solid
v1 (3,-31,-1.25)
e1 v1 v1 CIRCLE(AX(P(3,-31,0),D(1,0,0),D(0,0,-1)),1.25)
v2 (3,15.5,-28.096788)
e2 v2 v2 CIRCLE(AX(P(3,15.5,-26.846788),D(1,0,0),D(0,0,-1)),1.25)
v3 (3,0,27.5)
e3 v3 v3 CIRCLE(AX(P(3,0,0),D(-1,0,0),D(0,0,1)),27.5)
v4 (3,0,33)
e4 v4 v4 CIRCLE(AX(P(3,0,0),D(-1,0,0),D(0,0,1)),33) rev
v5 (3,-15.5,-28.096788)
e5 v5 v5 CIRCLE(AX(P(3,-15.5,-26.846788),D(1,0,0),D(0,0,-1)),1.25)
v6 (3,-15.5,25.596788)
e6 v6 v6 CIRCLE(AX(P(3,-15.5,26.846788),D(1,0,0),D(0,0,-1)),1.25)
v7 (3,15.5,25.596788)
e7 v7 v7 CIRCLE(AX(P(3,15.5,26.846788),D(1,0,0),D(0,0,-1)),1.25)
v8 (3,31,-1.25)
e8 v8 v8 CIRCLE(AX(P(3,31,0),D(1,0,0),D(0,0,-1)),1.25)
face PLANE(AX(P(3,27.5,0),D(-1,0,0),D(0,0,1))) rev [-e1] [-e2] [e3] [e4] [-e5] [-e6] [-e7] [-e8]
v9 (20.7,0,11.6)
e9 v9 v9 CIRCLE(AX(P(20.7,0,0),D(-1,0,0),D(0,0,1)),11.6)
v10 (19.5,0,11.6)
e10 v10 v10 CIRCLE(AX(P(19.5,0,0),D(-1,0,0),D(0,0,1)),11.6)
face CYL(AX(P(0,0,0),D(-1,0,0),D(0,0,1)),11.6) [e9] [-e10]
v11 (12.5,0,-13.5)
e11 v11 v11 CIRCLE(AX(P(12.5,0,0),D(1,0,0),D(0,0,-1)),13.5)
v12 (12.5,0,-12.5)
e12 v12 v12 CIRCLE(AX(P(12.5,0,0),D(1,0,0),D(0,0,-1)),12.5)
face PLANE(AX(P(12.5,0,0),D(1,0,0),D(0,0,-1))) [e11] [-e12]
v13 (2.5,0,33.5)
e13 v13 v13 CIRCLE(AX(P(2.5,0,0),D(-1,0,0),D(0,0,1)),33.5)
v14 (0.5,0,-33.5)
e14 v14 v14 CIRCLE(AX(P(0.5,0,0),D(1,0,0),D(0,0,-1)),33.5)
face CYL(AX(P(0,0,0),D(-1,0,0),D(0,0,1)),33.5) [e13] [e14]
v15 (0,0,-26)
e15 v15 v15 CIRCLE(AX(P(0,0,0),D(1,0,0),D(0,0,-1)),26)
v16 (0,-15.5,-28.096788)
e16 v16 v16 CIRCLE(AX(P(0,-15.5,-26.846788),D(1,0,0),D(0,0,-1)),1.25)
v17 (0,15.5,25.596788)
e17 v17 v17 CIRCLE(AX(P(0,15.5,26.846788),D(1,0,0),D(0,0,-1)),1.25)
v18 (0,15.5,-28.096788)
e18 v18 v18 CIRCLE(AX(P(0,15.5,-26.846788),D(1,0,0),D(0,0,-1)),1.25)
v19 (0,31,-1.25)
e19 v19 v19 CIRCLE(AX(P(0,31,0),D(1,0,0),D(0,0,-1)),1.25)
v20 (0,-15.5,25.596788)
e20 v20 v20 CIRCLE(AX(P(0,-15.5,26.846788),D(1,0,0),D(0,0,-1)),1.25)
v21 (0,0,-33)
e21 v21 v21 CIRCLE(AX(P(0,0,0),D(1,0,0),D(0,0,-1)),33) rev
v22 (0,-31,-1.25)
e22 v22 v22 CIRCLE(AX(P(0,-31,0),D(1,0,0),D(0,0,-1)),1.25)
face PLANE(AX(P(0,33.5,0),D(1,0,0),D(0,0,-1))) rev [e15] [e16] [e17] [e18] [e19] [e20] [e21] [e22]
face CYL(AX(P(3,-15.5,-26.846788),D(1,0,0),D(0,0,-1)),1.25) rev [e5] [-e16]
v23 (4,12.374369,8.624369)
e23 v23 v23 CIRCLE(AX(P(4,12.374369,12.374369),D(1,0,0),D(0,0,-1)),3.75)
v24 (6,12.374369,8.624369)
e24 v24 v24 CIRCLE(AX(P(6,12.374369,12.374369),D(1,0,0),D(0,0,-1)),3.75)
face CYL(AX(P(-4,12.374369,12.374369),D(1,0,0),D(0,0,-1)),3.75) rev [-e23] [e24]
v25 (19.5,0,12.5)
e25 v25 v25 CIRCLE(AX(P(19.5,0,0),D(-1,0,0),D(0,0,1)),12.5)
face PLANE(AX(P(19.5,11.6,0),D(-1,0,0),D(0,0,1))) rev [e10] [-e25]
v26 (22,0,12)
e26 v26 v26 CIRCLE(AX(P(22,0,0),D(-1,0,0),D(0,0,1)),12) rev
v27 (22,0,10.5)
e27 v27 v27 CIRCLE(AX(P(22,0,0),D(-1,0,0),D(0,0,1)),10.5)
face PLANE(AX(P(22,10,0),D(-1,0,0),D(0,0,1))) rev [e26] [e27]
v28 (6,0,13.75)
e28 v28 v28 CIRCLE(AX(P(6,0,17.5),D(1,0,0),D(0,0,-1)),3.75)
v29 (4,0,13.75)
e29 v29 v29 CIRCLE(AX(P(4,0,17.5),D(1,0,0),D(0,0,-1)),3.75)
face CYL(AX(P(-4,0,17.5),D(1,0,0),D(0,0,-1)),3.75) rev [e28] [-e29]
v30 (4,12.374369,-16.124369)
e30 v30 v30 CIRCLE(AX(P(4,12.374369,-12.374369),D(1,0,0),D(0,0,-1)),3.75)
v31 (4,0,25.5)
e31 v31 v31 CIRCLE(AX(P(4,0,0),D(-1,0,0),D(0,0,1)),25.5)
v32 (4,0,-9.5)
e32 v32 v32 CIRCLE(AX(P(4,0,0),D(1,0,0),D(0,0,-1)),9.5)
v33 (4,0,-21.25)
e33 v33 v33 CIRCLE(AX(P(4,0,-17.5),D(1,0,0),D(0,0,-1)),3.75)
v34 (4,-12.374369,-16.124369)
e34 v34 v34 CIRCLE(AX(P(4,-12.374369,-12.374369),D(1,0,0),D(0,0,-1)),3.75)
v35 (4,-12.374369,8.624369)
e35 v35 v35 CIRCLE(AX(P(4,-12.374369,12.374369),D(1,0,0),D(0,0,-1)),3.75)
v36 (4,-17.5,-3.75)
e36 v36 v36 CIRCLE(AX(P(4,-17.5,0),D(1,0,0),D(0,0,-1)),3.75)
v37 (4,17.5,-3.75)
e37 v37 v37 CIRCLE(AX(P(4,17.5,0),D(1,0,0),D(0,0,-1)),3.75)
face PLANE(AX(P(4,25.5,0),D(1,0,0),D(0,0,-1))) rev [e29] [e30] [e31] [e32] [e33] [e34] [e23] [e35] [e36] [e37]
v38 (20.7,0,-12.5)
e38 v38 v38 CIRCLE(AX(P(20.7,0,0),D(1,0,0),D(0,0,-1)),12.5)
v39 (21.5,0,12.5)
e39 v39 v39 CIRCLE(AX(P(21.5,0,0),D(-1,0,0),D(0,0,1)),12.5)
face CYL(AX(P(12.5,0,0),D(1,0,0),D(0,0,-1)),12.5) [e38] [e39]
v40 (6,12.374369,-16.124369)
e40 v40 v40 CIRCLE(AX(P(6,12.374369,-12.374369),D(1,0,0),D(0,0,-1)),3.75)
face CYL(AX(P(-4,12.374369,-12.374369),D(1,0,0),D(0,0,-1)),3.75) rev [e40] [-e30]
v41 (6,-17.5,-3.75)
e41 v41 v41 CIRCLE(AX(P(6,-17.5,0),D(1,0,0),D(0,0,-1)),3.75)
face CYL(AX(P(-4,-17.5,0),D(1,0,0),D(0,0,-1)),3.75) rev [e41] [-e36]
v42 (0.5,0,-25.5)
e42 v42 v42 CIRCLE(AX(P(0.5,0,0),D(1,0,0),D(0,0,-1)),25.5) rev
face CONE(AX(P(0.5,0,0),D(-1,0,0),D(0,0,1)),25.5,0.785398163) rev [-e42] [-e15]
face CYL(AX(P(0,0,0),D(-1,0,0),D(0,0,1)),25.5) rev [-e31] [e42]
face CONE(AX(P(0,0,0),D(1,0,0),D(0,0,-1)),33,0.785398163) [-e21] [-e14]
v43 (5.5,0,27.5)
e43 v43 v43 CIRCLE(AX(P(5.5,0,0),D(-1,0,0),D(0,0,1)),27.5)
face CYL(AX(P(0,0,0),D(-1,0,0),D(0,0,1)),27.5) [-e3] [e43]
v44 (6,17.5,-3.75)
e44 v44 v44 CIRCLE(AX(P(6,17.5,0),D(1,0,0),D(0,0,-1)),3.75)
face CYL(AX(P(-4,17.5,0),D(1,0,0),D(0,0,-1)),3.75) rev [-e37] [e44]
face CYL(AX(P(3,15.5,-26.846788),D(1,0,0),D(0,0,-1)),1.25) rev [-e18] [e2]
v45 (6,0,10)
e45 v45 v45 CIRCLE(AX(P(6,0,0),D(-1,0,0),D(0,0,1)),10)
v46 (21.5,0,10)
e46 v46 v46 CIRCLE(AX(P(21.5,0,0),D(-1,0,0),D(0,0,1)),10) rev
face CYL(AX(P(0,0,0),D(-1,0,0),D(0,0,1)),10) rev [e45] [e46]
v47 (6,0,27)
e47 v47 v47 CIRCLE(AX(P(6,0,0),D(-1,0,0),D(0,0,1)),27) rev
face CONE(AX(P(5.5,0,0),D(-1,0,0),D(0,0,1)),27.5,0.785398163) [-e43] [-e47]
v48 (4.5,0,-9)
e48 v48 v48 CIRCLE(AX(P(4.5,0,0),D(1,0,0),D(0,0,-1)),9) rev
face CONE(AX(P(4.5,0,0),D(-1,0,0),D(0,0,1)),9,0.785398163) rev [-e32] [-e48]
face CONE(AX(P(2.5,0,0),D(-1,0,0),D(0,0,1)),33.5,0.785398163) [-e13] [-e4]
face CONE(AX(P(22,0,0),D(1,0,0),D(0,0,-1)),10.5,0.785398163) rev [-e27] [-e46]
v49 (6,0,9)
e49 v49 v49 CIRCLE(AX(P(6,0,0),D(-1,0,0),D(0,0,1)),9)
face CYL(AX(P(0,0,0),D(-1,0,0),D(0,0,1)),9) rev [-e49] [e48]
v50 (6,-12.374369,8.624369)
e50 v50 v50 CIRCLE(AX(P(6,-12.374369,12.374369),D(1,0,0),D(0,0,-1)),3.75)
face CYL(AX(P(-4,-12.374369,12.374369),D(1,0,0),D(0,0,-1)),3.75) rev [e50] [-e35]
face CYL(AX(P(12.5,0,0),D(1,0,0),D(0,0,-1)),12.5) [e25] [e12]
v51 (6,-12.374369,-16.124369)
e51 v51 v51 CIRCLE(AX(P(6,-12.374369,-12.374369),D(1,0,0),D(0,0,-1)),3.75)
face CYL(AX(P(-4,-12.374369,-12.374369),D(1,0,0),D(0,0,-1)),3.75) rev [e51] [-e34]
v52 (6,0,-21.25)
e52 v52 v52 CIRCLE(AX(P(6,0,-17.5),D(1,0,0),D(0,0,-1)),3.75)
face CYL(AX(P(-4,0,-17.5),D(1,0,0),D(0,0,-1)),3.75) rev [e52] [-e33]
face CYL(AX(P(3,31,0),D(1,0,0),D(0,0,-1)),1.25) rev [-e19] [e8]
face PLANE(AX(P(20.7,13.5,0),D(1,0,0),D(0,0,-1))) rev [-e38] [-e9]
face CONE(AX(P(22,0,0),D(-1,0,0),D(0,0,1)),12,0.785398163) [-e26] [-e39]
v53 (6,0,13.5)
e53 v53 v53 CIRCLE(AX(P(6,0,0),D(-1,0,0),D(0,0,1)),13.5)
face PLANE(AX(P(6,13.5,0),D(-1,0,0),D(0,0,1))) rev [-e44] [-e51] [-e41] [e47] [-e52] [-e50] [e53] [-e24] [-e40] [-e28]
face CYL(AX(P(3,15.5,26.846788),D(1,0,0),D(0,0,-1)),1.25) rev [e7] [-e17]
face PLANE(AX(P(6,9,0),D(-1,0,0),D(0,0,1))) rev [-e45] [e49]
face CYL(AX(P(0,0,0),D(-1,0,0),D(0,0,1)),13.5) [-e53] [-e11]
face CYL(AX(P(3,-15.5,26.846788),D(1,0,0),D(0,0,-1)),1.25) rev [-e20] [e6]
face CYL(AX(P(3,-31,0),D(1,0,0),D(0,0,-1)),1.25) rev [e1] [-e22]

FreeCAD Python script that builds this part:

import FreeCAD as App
import Part
import Sketcher
Q = App.Units.Quantity


def edges_at(feature, points):
    """Names of the edges that pass closest to the given points."""
    edges = feature.Shape.Edges
    near = lambda p: min(range(len(edges)), key=lambda i: edges[i].distToShape(Part.Vertex(*p))[0])
    return sorted({f"Edge{near(p) + 1}" for p in points})


def add_polygon(sketch, points):
    """Adds a closed chain of lines whose ends are joined by coincident constraints."""
    first, n = sketch.GeometryCount, len(points)
    for a, b in zip(points, points[1:] + points[:1]):
        sketch.addGeometry(Part.LineSegment(App.Vector(*a, 0), App.Vector(*b, 0)), False)
    for i in range(n):
        sketch.addConstraint(Sketcher.Constraint("Coincident", first + i, 2, first + (i + 1) % n, 1))

doc = App.newDocument("Part")
body = doc.addObject("PartDesign::Body", "Body")

sketch1 = doc.addObject("Sketcher::SketchObject", "Sketch")
body.addObject(sketch1)
sketch1.AttachmentSupport = (doc.XY_Plane, [""])
sketch1.MapMode = "FlatFace"
add_polygon(sketch1, [(0, 33.5), (0, 25.5), (4, 25.5), (4, 9), (6, 9), (6, 10), (22, 10), (22, 13.5), (20.7, 13.5), (20.7, 11.6), (19.5, 11.6), (19.5, 13.5), (6, 13.5), (6, 27.5), (3, 27.5), (3, 33.5)])
sketch1.addConstraint(Sketcher.Constraint("Vertical", 0))
sketch1.addConstraint(Sketcher.Constraint("Horizontal", 1))
sketch1.addConstraint(Sketcher.Constraint("Vertical", 2))
sketch1.addConstraint(Sketcher.Constraint("Horizontal", 3))
sketch1.addConstraint(Sketcher.Constraint("Vertical", 4))
sketch1.addConstraint(Sketcher.Constraint("Horizontal", 5))
sketch1.addConstraint(Sketcher.Constraint("Vertical", 6))
sketch1.addConstraint(Sketcher.Constraint("Horizontal", 7))
sketch1.addConstraint(Sketcher.Constraint("Vertical", 8))
sketch1.addConstraint(Sketcher.Constraint("Horizontal", 9))
sketch1.addConstraint(Sketcher.Constraint("Vertical", 10))
sketch1.addConstraint(Sketcher.Constraint("Horizontal", 11))
sketch1.addConstraint(Sketcher.Constraint("Vertical", 12))
sketch1.addConstraint(Sketcher.Constraint("Horizontal", 13))
sketch1.addConstraint(Sketcher.Constraint("Vertical", 14))
sketch1.addConstraint(Sketcher.Constraint("Horizontal", 15))
sketch1.addConstraint(Sketcher.Constraint("PointOnObject", 0, 2, -2))
sketch1.addConstraint(Sketcher.Constraint("Horizontal", 7, 2, 10, 2))
sketch1.addConstraint(Sketcher.Constraint("Vertical", 4, 2, 11, 2))
sketch1.addConstraint(Sketcher.Constraint("Equal", 13, 15))
sketch1.addConstraint(Sketcher.Constraint("DistanceX", 1, 1, 1, 2, Q("4 mm")))
sketch1.addConstraint(Sketcher.Constraint("DistanceX", 3, 1, 3, 2, Q("2 mm")))
sketch1.addConstraint(Sketcher.Constraint("DistanceX", 5, 1, 5, 2, Q("16 mm")))
sketch1.addConstraint(Sketcher.Constraint("DistanceY", 0, 2, 0, 1, Q("8 mm")))
sketch1.addConstraint(Sketcher.Constraint("DistanceY", 4, 1, 4, 2, Q("1 mm")))
sketch1.addConstraint(Sketcher.Constraint("DistanceY", 12, 1, 12, 2, Q("14 mm")))
sketch1.addConstraint(Sketcher.Constraint("DistanceY", 14, 1, 14, 2, Q("6 mm")))
sketch1.addConstraint(Sketcher.Constraint("DistanceX", 7, 2, 7, 1, Q("1.3 mm")))
sketch1.addConstraint(Sketcher.Constraint("DistanceX", 9, 2, 9, 1, Q("1.2 mm")))
sketch1.addConstraint(Sketcher.Constraint("DistanceY", 2, 2, 2, 1, Q("16.5 mm")))
sketch1.addConstraint(Sketcher.Constraint("DistanceY", 8, 2, 8, 1, Q("1.9 mm")))
sketch1.addConstraint(Sketcher.Constraint("DistanceY", -1, 1, 2, 2, Q("9 mm")))
revolution = doc.addObject("PartDesign::Revolution", "Revolution")
body.addObject(revolution)
revolution.Profile = sketch1
revolution.ReferenceAxis = (sketch1, ["H_Axis"])
revolution.Angle = 360
doc.recompute()

chamfer = doc.addObject("PartDesign::Chamfer", "Chamfer")
body.addObject(chamfer)
chamfer.Base = (revolution, edges_at(revolution, [
    (3, -33.5, 0),
    (6, -27.5, 0),
    (22, -13.5, 0),
    (22, -10, 0),
    (4, -9, 0),
    (0, -25.5, 0),
    (0, -33.5, 0),
]))
chamfer.Size = 0.5

sketch2 = doc.addObject("Sketcher::SketchObject", "Sketch001")
body.addObject(sketch2)
sketch2.AttachmentSupport = (doc.YZ_Plane, [""])
sketch2.MapMode = "FlatFace"
sketch2.AttachmentOffset = App.Placement(App.Vector(0, 0, 6), App.Rotation())
sketch2.addGeometry(Part.Circle(App.Vector(-17.5, 0, 0), App.Vector(0, 0, 1), 3.8), False)
sketch2.addGeometry(Part.Circle(App.Vector(17.5, 0, 0), App.Vector(0, 0, 1), 3.8), False)
sketch2.addGeometry(Part.Circle(App.Vector(12.4, -12.4, 0), App.Vector(0, 0, 1), 3.8), False)
sketch2.addGeometry(Part.Circle(App.Vector(0, -17.5, 0), App.Vector(0, 0, 1), 3.8), False)
sketch2.addGeometry(Part.Circle(App.Vector(-12.4, -12.4, 0), App.Vector(0, 0, 1), 3.8), False)
sketch2.addGeometry(Part.Circle(App.Vector(-12.4, 12.4, 0), App.Vector(0, 0, 1), 3.8), False)
sketch2.addGeometry(Part.Circle(App.Vector(0, 17.5, 0), App.Vector(0, 0, 1), 3.8), False)
sketch2.addGeometry(Part.Circle(App.Vector(12.4, 12.4, 0), App.Vector(0, 0, 1), 3.8), False)
sketch2.addConstraint(Sketcher.Constraint("Equal", 0, 1))
sketch2.addConstraint(Sketcher.Constraint("Equal", 1, 2))
sketch2.addConstraint(Sketcher.Constraint("Equal", 2, 3))
sketch2.addConstraint(Sketcher.Constraint("Equal", 3, 4))
sketch2.addConstraint(Sketcher.Constraint("Equal", 4, 5))
sketch2.addConstraint(Sketcher.Constraint("Equal", 5, 6))
sketch2.addConstraint(Sketcher.Constraint("Equal", 6, 7))
sketch2.addConstraint(Sketcher.Constraint("Symmetric", 0, 3, 1, 3, -1, 1))
sketch2.addConstraint(Sketcher.Constraint("Symmetric", 2, 3, 5, 3, -1, 1))
sketch2.addConstraint(Sketcher.Constraint("Symmetric", 3, 3, 6, 3, -1, 1))
sketch2.addConstraint(Sketcher.Constraint("Symmetric", 4, 3, 7, 3, -1, 1))
sketch2.addConstraint(Sketcher.Constraint("Symmetric", 2, 3, 4, 3, -2))
sketch2.addConstraint(Sketcher.Constraint("PointOnObject", 0, 3, -1))
sketch2.addConstraint(Sketcher.Constraint("PointOnObject", 3, 3, -2))
sketch2.addConstraint(Sketcher.Constraint("Diameter", 0, Q("7.5 mm")))
sketch2.addConstraint(Sketcher.Constraint("DistanceX", 0, 3, 1, 3, Q("35 mm")))
sketch2.addConstraint(Sketcher.Constraint("DistanceY", 3, 3, -1, 1, Q("17.5 mm")))
sketch2.addConstraint(Sketcher.Constraint("DistanceX", -1, 1, 2, 3, Q("12.374369 mm")))
sketch2.addConstraint(Sketcher.Constraint("DistanceY", 2, 3, -1, 1, Q("12.374369 mm")))
pocket1 = doc.addObject("PartDesign::Pocket", "Pocket")
body.addObject(pocket1)
pocket1.Profile = sketch2
pocket1.Length = 10

sketch3 = doc.addObject("Sketcher::SketchObject", "Sketch002")
body.addObject(sketch3)
sketch3.AttachmentSupport = (doc.XZ_Plane, [""])
sketch3.MapMode = "FlatFace"
sketch3.AttachmentOffset = App.Placement(App.Vector(0, 0, -31), App.Rotation())
add_polygon(sketch3, [(-5.3, 0), (3, 0), (3, -1.2), (-4.5, -1.2)])
sketch3.addConstraint(Sketcher.Constraint("Horizontal", 0))
sketch3.addConstraint(Sketcher.Constraint("Vertical", 1))
sketch3.addConstraint(Sketcher.Constraint("Horizontal", 2))
sketch3.addConstraint(Sketcher.Constraint("PointOnObject", 0, 2, -1))
sketch3.addConstraint(Sketcher.Constraint("Angle", 3, Q("121 deg")))
sketch3.addConstraint(Sketcher.Constraint("DistanceX", 2, 2, 2, 1, Q("7.5 mm")))
sketch3.addConstraint(Sketcher.Constraint("DistanceX", -1, 1, 0, 2, Q("3 mm")))
sketch3.addConstraint(Sketcher.Constraint("DistanceY", 1, 2, 1, 1, Q("1.25 mm")))
groove = doc.addObject("PartDesign::Groove", "Groove")
body.addObject(groove)
groove.Profile = sketch3
groove.ReferenceAxis = (sketch3, ["H_Axis"])
groove.Angle = 360
doc.recompute()

polarpattern = doc.addObject("PartDesign::PolarPattern", "PolarPattern")
body.addObject(polarpattern)
polarpattern.Originals = [groove]
polarpattern.Axis = (doc.X_Axis, [""])
polarpattern.Angle = 360
polarpattern.Occurrences = 6
body.Tip = polarpattern

sketch4 = doc.addObject("Sketcher::SketchObject", "Sketch003")
body.addObject(sketch4)
sketch4.AttachmentSupport = (doc.YZ_Plane, [""])
sketch4.MapMode = "FlatFace"
sketch4.AttachmentOffset = App.Placement(App.Vector(0, 0, 22), App.Rotation())
add_polygon(sketch4, [(44, 44), (-44, 44), (-44, -44), (44, -44)])
sketch4.addGeometry(Part.Circle(App.Vector(0, 0, 0), App.Vector(0, 0, 1), 12), False)
sketch4.addConstraint(Sketcher.Constraint("Horizontal", 0))
sketch4.addConstraint(Sketcher.Constraint("Vertical", 1))
sketch4.addConstraint(Sketcher.Constraint("Horizontal", 2))
sketch4.addConstraint(Sketcher.Constraint("Vertical", 3))
sketch4.addConstraint(Sketcher.Constraint("Coincident", 4, 3, -1, 1))
sketch4.addConstraint(Sketcher.Constraint("Symmetric", 0, 2, 2, 2, -1, 1))
sketch4.addConstraint(Sketcher.Constraint("Equal", 2, 1))
sketch4.addConstraint(Sketcher.Constraint("Diameter", 4, Q("25 mm")))
sketch4.addConstraint(Sketcher.Constraint("DistanceX", 0, 2, 0, 1, Q("88.454 mm")))
pocket2 = doc.addObject("PartDesign::Pocket", "Pocket001")
body.addObject(pocket2)
pocket2.Profile = sketch4
pocket2.Length = 9.5
doc.recompute()

chamfer2 = doc.addObject("PartDesign::Chamfer", "Chamfer001")
body.addObject(chamfer2)
chamfer2.Base = (pocket2, edges_at(pocket2, [(22, 0, 12.5)]))
chamfer2.Size = 0.5

doc.recompute()
